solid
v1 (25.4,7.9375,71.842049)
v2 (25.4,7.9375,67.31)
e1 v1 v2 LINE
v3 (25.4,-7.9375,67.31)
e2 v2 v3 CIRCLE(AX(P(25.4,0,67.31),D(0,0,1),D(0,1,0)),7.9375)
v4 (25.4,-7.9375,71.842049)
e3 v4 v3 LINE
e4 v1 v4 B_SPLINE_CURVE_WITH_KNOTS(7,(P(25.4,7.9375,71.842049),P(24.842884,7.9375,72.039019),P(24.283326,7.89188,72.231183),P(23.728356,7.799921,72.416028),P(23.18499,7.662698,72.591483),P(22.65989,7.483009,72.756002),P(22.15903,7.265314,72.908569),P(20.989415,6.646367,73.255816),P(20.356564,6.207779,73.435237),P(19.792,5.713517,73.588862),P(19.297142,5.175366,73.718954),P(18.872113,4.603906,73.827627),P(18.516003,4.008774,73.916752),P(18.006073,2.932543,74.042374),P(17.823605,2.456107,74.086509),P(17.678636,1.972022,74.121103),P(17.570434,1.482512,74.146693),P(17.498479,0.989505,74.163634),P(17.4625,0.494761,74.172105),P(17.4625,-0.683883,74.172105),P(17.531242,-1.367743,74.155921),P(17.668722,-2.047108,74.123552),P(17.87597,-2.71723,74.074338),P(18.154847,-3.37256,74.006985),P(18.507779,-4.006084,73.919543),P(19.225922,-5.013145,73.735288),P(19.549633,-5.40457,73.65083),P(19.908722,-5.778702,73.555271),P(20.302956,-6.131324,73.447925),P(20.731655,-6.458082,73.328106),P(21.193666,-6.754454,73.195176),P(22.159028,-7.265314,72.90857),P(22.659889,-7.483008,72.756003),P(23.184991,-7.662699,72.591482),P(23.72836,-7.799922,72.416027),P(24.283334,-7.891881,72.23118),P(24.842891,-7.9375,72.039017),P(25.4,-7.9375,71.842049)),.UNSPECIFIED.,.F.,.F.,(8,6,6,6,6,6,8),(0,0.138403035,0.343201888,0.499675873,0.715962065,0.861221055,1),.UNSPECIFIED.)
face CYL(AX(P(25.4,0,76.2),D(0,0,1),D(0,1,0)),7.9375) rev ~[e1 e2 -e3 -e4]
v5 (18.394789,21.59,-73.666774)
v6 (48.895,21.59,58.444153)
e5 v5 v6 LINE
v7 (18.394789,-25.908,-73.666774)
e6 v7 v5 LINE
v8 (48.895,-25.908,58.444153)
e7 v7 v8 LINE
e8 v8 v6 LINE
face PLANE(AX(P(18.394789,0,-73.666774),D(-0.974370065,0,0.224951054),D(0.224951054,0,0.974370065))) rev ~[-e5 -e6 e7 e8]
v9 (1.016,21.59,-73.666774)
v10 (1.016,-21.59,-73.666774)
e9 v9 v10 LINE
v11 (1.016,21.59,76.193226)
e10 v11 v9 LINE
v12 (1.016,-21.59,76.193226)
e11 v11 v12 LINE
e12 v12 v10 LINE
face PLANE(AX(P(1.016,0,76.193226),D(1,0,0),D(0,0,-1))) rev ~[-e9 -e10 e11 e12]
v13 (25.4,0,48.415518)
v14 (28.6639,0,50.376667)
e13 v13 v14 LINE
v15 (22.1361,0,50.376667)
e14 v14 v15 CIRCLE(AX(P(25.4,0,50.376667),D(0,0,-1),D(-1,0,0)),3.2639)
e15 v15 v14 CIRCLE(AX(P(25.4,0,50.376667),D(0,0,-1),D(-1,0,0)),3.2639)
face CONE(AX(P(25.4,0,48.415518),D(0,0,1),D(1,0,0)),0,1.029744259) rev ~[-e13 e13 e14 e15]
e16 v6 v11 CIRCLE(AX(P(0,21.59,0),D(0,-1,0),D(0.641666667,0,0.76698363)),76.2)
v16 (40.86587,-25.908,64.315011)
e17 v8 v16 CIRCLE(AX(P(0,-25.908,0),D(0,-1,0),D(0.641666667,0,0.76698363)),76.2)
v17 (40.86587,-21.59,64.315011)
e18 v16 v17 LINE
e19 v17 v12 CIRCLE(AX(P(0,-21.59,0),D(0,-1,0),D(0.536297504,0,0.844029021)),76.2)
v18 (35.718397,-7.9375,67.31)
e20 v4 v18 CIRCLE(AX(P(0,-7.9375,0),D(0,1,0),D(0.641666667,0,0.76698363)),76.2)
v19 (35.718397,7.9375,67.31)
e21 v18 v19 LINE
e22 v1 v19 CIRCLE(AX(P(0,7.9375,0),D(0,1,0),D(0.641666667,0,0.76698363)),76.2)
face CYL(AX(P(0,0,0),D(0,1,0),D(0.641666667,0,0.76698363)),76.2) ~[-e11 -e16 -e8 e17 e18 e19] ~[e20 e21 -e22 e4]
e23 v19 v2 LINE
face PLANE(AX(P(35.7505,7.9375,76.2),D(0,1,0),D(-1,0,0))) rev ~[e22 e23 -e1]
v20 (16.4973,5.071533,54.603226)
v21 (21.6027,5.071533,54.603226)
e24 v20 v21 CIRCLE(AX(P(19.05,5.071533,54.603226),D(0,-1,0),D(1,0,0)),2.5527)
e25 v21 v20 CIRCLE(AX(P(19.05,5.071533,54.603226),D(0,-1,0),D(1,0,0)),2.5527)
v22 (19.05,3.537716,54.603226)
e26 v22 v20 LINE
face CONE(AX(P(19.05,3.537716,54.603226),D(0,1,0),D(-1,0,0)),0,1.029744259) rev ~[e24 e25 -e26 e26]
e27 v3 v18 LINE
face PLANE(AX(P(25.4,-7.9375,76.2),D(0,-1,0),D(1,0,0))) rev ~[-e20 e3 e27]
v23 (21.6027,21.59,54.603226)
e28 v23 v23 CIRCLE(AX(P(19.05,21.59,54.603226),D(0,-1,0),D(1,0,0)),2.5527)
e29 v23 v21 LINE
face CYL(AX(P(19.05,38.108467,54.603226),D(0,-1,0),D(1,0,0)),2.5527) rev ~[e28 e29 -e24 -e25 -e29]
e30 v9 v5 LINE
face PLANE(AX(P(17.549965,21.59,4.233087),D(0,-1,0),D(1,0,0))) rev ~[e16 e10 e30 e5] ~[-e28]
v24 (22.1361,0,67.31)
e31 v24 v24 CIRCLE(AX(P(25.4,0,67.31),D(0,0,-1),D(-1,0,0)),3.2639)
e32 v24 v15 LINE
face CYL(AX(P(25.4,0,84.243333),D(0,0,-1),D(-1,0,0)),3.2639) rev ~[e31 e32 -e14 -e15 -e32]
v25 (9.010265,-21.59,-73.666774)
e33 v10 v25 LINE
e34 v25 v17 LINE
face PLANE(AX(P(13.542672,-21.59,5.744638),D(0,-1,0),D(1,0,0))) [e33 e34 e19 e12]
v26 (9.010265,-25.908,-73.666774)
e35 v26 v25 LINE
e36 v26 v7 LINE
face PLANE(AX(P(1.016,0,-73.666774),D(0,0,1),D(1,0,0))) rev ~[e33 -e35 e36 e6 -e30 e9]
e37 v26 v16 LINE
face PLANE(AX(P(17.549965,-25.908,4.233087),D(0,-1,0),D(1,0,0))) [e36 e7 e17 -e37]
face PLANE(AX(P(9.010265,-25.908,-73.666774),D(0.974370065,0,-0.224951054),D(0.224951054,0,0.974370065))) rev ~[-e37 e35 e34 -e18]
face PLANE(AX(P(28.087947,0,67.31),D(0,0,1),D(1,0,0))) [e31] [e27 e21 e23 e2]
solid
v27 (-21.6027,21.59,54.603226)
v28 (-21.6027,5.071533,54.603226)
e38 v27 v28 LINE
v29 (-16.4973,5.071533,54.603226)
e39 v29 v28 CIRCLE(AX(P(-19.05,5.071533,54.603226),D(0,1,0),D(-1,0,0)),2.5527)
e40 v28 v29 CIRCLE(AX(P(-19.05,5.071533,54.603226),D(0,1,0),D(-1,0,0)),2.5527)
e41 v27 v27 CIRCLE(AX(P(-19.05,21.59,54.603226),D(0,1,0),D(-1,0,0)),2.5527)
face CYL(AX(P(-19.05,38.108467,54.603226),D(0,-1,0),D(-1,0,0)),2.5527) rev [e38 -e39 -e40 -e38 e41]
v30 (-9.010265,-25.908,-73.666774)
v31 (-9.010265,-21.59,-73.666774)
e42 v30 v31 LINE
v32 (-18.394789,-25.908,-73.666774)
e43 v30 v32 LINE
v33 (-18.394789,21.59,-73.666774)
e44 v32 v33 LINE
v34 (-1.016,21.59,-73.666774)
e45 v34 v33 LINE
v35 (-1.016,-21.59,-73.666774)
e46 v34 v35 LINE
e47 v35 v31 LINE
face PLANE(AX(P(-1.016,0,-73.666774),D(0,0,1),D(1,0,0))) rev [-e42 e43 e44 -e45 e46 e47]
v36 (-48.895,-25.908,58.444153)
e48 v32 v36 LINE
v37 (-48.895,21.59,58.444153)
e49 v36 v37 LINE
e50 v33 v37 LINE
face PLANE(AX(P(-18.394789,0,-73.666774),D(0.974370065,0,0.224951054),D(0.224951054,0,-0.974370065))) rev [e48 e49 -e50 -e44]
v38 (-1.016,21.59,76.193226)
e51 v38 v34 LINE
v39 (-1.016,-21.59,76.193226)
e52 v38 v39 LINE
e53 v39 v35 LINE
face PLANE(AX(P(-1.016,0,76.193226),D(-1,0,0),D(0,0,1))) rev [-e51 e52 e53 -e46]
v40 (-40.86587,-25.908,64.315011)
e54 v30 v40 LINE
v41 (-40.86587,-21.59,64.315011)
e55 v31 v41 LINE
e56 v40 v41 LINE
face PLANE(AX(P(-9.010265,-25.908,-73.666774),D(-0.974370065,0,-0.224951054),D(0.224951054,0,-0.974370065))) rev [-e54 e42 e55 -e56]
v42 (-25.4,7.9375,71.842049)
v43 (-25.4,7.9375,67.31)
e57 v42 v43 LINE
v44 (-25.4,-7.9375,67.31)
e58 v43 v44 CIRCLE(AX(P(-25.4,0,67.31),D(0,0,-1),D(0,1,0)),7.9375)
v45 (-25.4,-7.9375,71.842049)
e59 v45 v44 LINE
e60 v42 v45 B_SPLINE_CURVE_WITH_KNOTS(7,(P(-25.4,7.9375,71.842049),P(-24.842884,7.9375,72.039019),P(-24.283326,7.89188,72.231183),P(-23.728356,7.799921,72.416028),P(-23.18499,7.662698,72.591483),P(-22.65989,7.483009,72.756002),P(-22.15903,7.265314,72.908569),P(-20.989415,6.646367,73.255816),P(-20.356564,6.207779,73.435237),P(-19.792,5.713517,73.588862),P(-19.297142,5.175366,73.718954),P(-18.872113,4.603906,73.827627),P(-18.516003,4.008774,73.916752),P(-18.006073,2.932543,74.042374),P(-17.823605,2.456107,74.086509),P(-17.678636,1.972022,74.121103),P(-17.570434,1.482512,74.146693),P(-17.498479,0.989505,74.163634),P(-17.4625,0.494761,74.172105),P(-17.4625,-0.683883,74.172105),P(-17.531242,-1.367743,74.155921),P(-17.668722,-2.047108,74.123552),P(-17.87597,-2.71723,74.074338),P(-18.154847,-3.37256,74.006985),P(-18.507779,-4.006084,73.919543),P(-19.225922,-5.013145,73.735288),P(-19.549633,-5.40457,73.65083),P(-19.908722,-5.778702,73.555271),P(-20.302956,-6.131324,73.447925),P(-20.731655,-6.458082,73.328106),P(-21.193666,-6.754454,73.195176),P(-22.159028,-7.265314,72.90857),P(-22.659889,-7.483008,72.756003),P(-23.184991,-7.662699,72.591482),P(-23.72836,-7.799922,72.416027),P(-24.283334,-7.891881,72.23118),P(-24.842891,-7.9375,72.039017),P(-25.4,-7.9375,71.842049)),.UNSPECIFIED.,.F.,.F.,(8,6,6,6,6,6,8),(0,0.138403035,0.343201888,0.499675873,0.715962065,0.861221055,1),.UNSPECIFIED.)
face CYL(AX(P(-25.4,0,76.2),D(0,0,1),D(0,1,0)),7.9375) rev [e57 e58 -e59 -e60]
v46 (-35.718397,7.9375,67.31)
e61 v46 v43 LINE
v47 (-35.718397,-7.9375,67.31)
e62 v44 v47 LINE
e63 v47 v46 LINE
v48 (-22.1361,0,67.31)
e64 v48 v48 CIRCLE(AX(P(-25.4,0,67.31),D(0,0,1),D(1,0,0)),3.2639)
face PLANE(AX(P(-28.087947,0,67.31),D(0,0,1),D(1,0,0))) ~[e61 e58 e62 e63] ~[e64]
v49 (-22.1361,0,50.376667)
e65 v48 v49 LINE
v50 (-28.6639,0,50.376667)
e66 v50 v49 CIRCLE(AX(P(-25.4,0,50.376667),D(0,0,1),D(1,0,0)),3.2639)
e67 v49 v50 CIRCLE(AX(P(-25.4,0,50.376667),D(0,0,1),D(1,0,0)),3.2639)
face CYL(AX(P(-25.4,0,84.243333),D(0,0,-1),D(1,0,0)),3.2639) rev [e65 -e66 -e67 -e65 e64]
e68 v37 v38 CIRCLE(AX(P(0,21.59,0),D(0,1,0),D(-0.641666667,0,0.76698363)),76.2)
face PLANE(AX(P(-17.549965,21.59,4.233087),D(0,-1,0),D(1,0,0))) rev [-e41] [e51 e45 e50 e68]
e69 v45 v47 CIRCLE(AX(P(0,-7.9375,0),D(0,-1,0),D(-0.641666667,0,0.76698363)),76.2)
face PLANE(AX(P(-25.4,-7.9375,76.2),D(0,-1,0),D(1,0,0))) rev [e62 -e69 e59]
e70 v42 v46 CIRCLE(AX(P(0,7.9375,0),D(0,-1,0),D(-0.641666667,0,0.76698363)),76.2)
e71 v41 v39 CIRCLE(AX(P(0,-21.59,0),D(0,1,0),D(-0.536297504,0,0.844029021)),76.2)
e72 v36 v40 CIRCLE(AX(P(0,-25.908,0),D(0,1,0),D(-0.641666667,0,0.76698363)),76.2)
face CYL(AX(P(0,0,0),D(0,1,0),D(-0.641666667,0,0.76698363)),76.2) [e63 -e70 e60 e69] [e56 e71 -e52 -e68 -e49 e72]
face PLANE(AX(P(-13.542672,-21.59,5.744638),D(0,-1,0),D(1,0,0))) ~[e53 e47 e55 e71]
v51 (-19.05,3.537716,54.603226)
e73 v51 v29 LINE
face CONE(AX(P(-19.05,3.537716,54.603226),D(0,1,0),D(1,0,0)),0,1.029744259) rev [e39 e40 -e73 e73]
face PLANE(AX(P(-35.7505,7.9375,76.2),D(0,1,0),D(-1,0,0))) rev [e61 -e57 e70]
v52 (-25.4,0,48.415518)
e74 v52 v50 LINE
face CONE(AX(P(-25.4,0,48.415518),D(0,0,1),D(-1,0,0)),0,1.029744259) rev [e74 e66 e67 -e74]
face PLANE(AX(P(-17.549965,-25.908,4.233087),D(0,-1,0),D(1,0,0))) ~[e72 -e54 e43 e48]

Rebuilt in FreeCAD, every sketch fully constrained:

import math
import FreeCAD as App
import Part
import Sketcher

V = App.Vector
Q = App.Units.Quantity

doc = App.newDocument("Part")
params = doc.addObject("Spreadsheet::Sheet", "Params")
for row, (alias, value) in enumerate([
    ("sketch1_radius", "3 in"),
    ("sketch1_height", "5.9 in"),
    ("pad1_length", "0.85 in"),
    ("pad1_length2", "1.02 in"),
    ("sketch2_radius", "3 in"),
    ("sketch2_height", "5.9 in"),
    ("pocket1_length", "0.17 in"),
    ("sketch3_radius", "0.3125 in"),
    ("pocket2_length", "0.35 in"),
    ("sketch4_diameter", "0.257 in"),
    ("hole_diameter", "0.257 in"),
    ("hole_depth", "16.933333 mm"),
    ("sketch5_diameter", "0.201 in"),
    ("hole2_diameter", "0.201 in"),
    ("hole2_depth", "16.518467 mm"),
], start=1):
    params.set(f"A{row}", alias)
    params.set(f"B{row}", "=" + value)
    params.setAlias(f"B{row}", alias)

body = doc.addObject("PartDesign::Body", "Body")

# Sketch on XZ plane
sketch1 = doc.addObject("Sketcher::SketchObject", "Sketch")
body.addObject(sketch1)
sketch1.AttachmentSupport = (doc.XZ_Plane, [""])
sketch1.MapMode = "FlatFace"
sketch1.addGeometry([
    Part.ArcOfCircle(Part.Circle(V(0, 0, 0), V(0, 0, 1), 76), math.radians(50), math.radians(89)),
    Part.LineSegment(V(1, 76, 0), V(1, -74, 0)),
    Part.LineSegment(V(1, -74, 0), V(18, -74, 0)),
    Part.LineSegment(V(18, -74, 0), V(49, 58, 0)),
], False)
sketch1.addConstraint([
    Sketcher.Constraint("Coincident", 0, 2, 1, 1),
    Sketcher.Constraint("Coincident", 1, 2, 2, 1),
    Sketcher.Constraint("Coincident", 2, 2, 3, 1),
    Sketcher.Constraint("Coincident", 3, 2, 0, 1),
    Sketcher.Constraint("Vertical", 1),
    Sketcher.Constraint("Horizontal", 2),
    Sketcher.Constraint("Coincident", 0, 3, -1, 1),
    Sketcher.Constraint("Radius", 0, Q("3 in")),
    Sketcher.Constraint("DistanceY", 1, 2, 1, 1, Q("5.9 in")),
    Sketcher.Constraint("Angle", 3, Q("77 deg")),
    Sketcher.Constraint("DistanceX", -1, 1, 0, 2, Q("0.04 in")),
    Sketcher.Constraint("DistanceX", -1, 1, 3, 2, Q("1.925 in")),
])
sketch1.setExpression("Constraints[7]", "Params.sketch1_radius")
sketch1.setExpression("Constraints[8]", "Params.sketch1_height")
pad1 = doc.addObject("PartDesign::Pad", "Pad")
body.addObject(pad1)
pad1.Profile = sketch1
pad1.Type = "TwoLengths"
pad1.setExpression("Length", "Params.pad1_length")
pad1.setExpression("Length2", "Params.pad1_length2")
pad1.Reversed = True

# Sketch on XZ plane
sketch2 = doc.addObject("Sketcher::SketchObject", "Sketch001")
body.addObject(sketch2)
sketch2.AttachmentSupport = (doc.XZ_Plane, [""])
sketch2.MapMode = "FlatFace"
sketch2.AttachmentOffset = App.Placement(V(0, 0, 1.02 * 25.4), App.Rotation())
sketch2.addGeometry([
    Part.LineSegment(V(1, -74, 0), V(9, -74, 0)),
    Part.LineSegment(V(9, -74, 0), V(41, 64, 0)),
    Part.ArcOfCircle(Part.Circle(V(0, 0, 0), V(0, 0, 1), 76), math.radians(58), math.radians(89)),
    Part.LineSegment(V(1, 76, 0), V(1, -74, 0)),
], False)
sketch2.addConstraint([
    Sketcher.Constraint("Coincident", 0, 2, 1, 1),
    Sketcher.Constraint("Coincident", 1, 2, 2, 1),
    Sketcher.Constraint("Coincident", 2, 2, 3, 1),
    Sketcher.Constraint("Coincident", 3, 2, 0, 1),
    Sketcher.Constraint("Horizontal", 0),
    Sketcher.Constraint("Vertical", 3),
    Sketcher.Constraint("Coincident", 2, 3, -1, 1),
    Sketcher.Constraint("Radius", 2, Q("3 in")),
    Sketcher.Constraint("DistanceY", 3, 2, 3, 1, Q("5.9 in")),
    Sketcher.Constraint("Angle", 1, Q("77 deg")),
    Sketcher.Constraint("DistanceX", -1, 1, 2, 2, Q("0.04 in")),
    Sketcher.Constraint("DistanceX", 0, 1, 0, 2, 7.994265),
])
sketch2.setExpression("Constraints[7]", "Params.sketch2_radius")
sketch2.setExpression("Constraints[8]", "Params.sketch2_height")
pocket1 = doc.addObject("PartDesign::Pocket", "Pocket")
body.addObject(pocket1)
pocket1.Profile = sketch2
pocket1.setExpression("Length", "Params.pocket1_length")

# Sketch on XY plane
sketch3 = doc.addObject("Sketcher::SketchObject", "Sketch002")
body.addObject(sketch3)
sketch3.AttachmentSupport = (doc.XY_Plane, [""])
sketch3.MapMode = "FlatFace"
sketch3.AttachmentOffset = App.Placement(V(0, 0, 3 * 25.4), App.Rotation())
sketch3.addGeometry([
    Part.LineSegment(V(36, -8, 0), V(36, 8, 0)),
    Part.LineSegment(V(36, 8, 0), V(25, 8, 0)),
    Part.ArcOfCircle(Part.Circle(V(25, 0, 0), V(0, 0, 1), 8), math.radians(90), math.radians(270)),
    Part.LineSegment(V(25, -8, 0), V(36, -8, 0)),
], False)
sketch3.addConstraint([
    Sketcher.Constraint("Coincident", 0, 2, 1, 1),
    Sketcher.Constraint("Tangent", 1, 2, 2, 1),
    Sketcher.Constraint("Tangent", 2, 2, 3, 1),
    Sketcher.Constraint("Coincident", 3, 2, 0, 1),
    Sketcher.Constraint("Vertical", 0),
    Sketcher.Constraint("Horizontal", 1),
    Sketcher.Constraint("Horizontal", 3),
    Sketcher.Constraint("PointOnObject", 2, 3, -1),
    Sketcher.Constraint("DistanceX", -1, 1, 2, 3, Q("1 in")),
    Sketcher.Constraint("Radius", 2, Q("0.3125 in")),
    Sketcher.Constraint("DistanceX", 1, 2, 1, 1, Q("0.4075 in")),
])
sketch3.setExpression("Constraints[9]", "Params.sketch3_radius")
pocket2 = doc.addObject("PartDesign::Pocket", "Pocket001")
body.addObject(pocket2)
pocket2.Profile = sketch3
pocket2.setExpression("Length", "Params.pocket2_length")

# Sketch on XY plane
sketch4 = doc.addObject("Sketcher::SketchObject", "Sketch003")
body.addObject(sketch4)
sketch4.AttachmentSupport = (doc.XY_Plane, [""])
sketch4.MapMode = "FlatFace"
sketch4.AttachmentOffset = App.Placement(V(0, 0, 2.65 * 25.4), App.Rotation())
sketch4.addGeometry(Part.Circle(V(25.4, 0, 0), V(0, 0, 1), 3.3), False)
sketch4.addConstraint([
    Sketcher.Constraint("PointOnObject", 0, 3, -1),
    Sketcher.Constraint("Diameter", 0, Q("0.257 in")),
    Sketcher.Constraint("DistanceX", -1, 1, 0, 3, Q("1 in")),
])
sketch4.setExpression("Constraints[1]", "Params.sketch4_diameter")
doc.recompute()
hole = doc.addObject("PartDesign::Hole", "Hole")
body.addObject(hole)
hole.Profile = sketch4
hole.ThreadType = "None"
hole.setExpression("Diameter", "Params.hole_diameter")
hole.DepthType = "Dimension"
hole.setExpression("Depth", "Params.hole_depth")
hole.DrillPoint = "Angled"
hole.DrillPointAngle = 118

# Sketch on XZ plane
sketch5 = doc.addObject("Sketcher::SketchObject", "Sketch004")
body.addObject(sketch5)
sketch5.AttachmentSupport = (doc.XZ_Plane, [""])
sketch5.MapMode = "FlatFace"
sketch5.AttachmentOffset = App.Placement(V(0, 0, -0.85 * 25.4), App.Rotation())
sketch5.addGeometry(Part.Circle(V(19.1, 54.6, 0), V(0, 0, 1), 2.6), False)
sketch5.addConstraint([
    Sketcher.Constraint("Diameter", 0, Q("0.201 in")),
    Sketcher.Constraint("DistanceX", -1, 1, 0, 3, Q("0.75 in")),
    Sketcher.Constraint("DistanceY", -1, 1, 0, 3, 54.603226),
])
sketch5.setExpression("Constraints[0]", "Params.sketch5_diameter")
doc.recompute()
hole2 = doc.addObject("PartDesign::Hole", "Hole001")
body.addObject(hole2)
hole2.Profile = sketch5
hole2.ThreadType = "None"
hole2.setExpression("Diameter", "Params.hole2_diameter")
hole2.DepthType = "Dimension"
hole2.setExpression("Depth", "Params.hole2_depth")
hole2.DrillPoint = "Angled"
hole2.DrillPointAngle = 118
hole2.Reversed = True
body2 = doc.addObject("PartDesign::Body", "Body001")
doc.recompute()

mirroring = doc.addObject("Part::Mirroring", "Mirroring")
mirroring.Source = body
mirroring.Base = V(0, 0, 0)
mirroring.Normal = V(1, 0, 0)
body2.BaseFeature = mirroring
doc.recompute()
mirroring.Visibility = False

doc.recompute()
